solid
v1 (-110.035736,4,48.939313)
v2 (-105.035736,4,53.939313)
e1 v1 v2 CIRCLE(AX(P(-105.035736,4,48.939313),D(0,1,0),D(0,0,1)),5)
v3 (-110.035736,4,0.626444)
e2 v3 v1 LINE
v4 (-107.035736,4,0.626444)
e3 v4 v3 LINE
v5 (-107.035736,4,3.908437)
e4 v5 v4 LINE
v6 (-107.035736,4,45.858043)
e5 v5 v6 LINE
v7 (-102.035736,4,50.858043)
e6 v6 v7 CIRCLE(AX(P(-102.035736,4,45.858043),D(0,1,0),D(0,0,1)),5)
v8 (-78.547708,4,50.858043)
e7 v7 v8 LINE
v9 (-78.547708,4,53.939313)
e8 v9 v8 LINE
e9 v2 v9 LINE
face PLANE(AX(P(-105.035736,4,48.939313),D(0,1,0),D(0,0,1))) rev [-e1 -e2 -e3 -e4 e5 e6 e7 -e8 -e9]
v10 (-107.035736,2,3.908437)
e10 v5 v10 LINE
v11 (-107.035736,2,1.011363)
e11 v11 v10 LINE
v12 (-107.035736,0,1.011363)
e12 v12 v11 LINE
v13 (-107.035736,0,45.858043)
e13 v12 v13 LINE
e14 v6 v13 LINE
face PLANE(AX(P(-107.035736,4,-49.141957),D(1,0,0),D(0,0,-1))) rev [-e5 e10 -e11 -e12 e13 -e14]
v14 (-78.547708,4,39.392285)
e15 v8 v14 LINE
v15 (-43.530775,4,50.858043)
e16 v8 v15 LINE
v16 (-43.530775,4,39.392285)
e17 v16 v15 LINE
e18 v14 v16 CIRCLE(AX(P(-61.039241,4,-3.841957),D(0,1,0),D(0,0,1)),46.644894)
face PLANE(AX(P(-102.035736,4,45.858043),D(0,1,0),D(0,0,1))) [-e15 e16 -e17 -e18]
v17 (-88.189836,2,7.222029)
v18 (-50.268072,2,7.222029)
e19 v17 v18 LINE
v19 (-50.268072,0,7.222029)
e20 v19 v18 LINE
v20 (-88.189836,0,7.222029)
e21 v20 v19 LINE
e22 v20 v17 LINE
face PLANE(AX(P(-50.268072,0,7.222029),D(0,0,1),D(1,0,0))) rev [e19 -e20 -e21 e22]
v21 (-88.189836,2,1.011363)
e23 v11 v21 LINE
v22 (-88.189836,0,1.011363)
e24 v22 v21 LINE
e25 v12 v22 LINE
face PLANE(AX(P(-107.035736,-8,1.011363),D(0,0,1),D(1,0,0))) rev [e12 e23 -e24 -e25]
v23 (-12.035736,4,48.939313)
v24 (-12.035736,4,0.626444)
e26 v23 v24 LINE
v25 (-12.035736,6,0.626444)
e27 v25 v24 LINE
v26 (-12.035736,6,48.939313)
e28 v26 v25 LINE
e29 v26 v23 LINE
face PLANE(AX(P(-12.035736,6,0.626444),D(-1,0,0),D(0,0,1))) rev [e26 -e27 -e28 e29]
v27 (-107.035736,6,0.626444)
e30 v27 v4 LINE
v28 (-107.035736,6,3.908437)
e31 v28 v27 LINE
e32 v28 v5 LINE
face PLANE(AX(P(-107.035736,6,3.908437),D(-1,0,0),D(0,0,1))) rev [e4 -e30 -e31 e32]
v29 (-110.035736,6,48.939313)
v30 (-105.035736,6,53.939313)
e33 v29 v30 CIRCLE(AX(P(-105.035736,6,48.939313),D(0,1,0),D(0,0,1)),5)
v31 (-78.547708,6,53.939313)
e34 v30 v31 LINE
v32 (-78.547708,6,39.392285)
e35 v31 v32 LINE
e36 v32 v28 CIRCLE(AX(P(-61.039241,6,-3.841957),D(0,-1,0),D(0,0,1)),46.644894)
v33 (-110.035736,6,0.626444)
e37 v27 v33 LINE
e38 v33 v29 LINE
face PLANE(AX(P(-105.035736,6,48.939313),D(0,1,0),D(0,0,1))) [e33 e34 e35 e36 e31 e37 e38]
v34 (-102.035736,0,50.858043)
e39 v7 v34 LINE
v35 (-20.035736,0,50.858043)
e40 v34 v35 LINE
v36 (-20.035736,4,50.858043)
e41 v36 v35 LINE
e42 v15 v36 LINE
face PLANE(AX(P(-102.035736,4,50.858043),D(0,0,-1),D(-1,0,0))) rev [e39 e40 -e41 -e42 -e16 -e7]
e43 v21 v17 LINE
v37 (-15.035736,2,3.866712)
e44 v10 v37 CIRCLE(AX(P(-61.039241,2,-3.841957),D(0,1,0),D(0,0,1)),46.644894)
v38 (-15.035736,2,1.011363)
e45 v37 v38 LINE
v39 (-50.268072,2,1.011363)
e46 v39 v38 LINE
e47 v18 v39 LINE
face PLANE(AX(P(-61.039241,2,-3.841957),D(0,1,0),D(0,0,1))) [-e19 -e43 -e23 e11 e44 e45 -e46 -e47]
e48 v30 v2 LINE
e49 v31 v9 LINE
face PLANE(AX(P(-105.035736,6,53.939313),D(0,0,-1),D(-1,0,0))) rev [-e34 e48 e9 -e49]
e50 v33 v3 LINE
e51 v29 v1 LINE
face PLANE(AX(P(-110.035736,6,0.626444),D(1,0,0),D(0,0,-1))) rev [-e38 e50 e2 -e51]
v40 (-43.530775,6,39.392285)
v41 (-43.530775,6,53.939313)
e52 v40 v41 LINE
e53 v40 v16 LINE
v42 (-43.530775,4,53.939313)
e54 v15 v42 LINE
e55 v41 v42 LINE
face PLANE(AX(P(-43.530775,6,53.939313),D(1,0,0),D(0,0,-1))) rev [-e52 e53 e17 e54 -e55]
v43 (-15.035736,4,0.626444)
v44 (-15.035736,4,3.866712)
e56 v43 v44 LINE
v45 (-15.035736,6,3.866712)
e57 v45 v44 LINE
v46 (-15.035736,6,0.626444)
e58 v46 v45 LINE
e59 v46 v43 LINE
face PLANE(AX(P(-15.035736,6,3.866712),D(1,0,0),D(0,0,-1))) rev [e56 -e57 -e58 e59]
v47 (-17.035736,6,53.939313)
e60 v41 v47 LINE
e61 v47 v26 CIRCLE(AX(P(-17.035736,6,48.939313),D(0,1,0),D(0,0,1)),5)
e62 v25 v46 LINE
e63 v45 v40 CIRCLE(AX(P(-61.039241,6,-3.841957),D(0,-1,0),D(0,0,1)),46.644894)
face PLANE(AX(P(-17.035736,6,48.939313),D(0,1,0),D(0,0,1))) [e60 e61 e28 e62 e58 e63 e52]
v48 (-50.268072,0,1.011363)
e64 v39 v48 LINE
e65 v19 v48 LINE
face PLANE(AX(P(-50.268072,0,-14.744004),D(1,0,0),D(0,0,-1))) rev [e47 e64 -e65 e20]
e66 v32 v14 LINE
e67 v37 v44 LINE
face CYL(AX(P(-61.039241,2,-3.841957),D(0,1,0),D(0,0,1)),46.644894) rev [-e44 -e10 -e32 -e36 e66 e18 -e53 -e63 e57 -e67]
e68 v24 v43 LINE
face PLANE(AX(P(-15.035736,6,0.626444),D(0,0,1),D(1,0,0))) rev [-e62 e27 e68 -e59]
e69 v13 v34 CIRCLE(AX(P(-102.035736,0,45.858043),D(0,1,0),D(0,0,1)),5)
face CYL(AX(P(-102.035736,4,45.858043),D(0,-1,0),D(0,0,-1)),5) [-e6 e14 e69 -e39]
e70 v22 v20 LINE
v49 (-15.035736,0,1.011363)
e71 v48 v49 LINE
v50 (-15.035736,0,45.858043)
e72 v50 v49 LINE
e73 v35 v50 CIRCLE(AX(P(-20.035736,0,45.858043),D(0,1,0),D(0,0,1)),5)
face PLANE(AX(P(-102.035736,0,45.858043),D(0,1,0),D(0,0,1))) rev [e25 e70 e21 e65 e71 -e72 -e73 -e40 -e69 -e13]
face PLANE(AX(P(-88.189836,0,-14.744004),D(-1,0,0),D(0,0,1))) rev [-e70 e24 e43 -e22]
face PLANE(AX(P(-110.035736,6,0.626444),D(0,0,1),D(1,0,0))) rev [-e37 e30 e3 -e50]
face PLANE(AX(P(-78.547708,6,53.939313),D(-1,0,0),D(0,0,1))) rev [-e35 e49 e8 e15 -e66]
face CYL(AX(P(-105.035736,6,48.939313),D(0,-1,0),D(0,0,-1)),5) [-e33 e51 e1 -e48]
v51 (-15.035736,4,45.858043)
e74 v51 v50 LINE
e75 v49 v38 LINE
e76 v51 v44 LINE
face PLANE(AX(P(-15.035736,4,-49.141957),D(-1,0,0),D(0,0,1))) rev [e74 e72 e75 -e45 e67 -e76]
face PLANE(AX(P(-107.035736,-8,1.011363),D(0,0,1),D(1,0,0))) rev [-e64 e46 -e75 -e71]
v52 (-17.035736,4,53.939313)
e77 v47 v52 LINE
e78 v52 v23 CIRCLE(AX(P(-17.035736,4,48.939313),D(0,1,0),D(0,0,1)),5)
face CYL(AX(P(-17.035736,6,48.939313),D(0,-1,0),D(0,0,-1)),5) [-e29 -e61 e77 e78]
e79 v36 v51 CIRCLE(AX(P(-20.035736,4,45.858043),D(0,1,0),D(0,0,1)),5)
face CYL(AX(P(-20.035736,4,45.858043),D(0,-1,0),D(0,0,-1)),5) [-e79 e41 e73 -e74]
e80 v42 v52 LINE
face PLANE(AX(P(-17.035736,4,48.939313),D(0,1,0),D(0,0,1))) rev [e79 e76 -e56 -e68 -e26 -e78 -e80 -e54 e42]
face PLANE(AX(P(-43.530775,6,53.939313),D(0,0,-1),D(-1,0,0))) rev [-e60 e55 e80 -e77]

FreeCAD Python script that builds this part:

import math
import FreeCAD as App
import Part
import Sketcher

V = App.Vector
Q = App.Units.Quantity

doc = App.newDocument("Part")
body = doc.addObject("PartDesign::Body", "Body")

# Sketch on XZ plane
sketch1 = body.newObject("Sketcher::SketchObject", "Sketch")
sketch1.AttachmentSupport = (doc.getObject("XZ_Plane"), [""])
sketch1.MapMode = "FlatFace"
sketch1.addGeometry([
    Part.LineSegment(V(-15, -49, 0), V(-107, -49, 0)),  # 0
    Part.LineSegment(V(-107, -49, 0), V(-107, 46, 0)),  # 1
    Part.ArcOfCircle(Part.Circle(V(-102, 46, 0), V(0, 0, 1), 5), math.radians(90), math.radians(180)),  # 2
    Part.LineSegment(V(-102, 51, 0), V(-20, 51, 0)),  # 3
    Part.ArcOfCircle(Part.Circle(V(-20, 46, 0), V(0, 0, 1), 5), math.radians(0), math.radians(90)),  # 4
    Part.LineSegment(V(-15, 46, 0), V(-15, -49, 0)),  # 5
], False)
sketch1.addConstraint([
    Sketcher.Constraint("Coincident", 0, 2, 1, 1),
    Sketcher.Constraint("Tangent", 1, 2, 2, 2),
    Sketcher.Constraint("Tangent", 2, 1, 3, 1),
    Sketcher.Constraint("Tangent", 3, 2, 4, 2),
    Sketcher.Constraint("Tangent", 4, 1, 5, 1),
    Sketcher.Constraint("Coincident", 5, 2, 0, 1),
    Sketcher.Constraint("Horizontal", 0),
    Sketcher.Constraint("Vertical", 1),
    Sketcher.Constraint("Horizontal", 3),
    Sketcher.Constraint("Vertical", 5),
    Sketcher.Constraint("Equal", 2, 4),
    Sketcher.Constraint("Radius", 2, Q("5 mm")),
    Sketcher.Constraint("DistanceX", 0, 2, 0, 1, Q("92 mm")),
    Sketcher.Constraint("DistanceY", 1, 1, 1, 2, Q("95 mm")),
    Sketcher.Constraint("DistanceX", 2, 3, -1, 1, Q("102.035736 mm")),
    Sketcher.Constraint("DistanceY", -1, 1, 2, 3, Q("45.858043 mm")),
])
pad1 = body.newObject("PartDesign::Pad", "Pad")
pad1.Profile = sketch1
pad1.Length = 4
pad1.Reversed = True

# Sketch on XZ plane
sketch2 = body.newObject("Sketcher::SketchObject", "Sketch001")
sketch2.AttachmentSupport = (doc.getObject("XZ_Plane"), [""])
sketch2.MapMode = "FlatFace"
sketch2.AttachmentOffset = App.Placement(V(0, 0, -4), App.Rotation())
sketch2.addGeometry([
    Part.LineSegment(V(-1, -54, 0), V(-122, -54, 0)),  # 0
    Part.LineSegment(V(-122, -54, 0), V(-116, 2, 0)),  # 1
    Part.LineSegment(V(-116, 2, 0), V(-107, 2, 0)),  # 2
    Part.ArcOfCircle(Part.Circle(V(-61, -2, 0), V(0, 0, 1), 46), math.radians(175), math.radians(365)),  # 3
    Part.LineSegment(V(-15, 2, 0), V(-1, 2, 0)),  # 4
    Part.LineSegment(V(-1, 2, 0), V(-1, -54, 0)),  # 5
], False)
sketch2.addConstraint([
    Sketcher.Constraint("Coincident", 0, 2, 1, 1),
    Sketcher.Constraint("Coincident", 1, 2, 2, 1),
    Sketcher.Constraint("Coincident", 2, 2, 3, 1),
    Sketcher.Constraint("Coincident", 3, 2, 4, 1),
    Sketcher.Constraint("Coincident", 4, 2, 5, 1),
    Sketcher.Constraint("Coincident", 5, 2, 0, 1),
    Sketcher.Constraint("Horizontal", 0),
    Sketcher.Constraint("Horizontal", 2),
    Sketcher.Constraint("Horizontal", 4),
    Sketcher.Constraint("Vertical", 5),
    Sketcher.Constraint("Horizontal", 2, 2, 3, 2),
    Sketcher.Constraint("DistanceX", 2, 2, 3, 3, Q("46 mm")),
    Sketcher.Constraint("Radius", 3, Q("46.148858 mm")),
    Sketcher.Constraint("DistanceX", 0, 2, 0, 1, Q("121.303026 mm")),
    Sketcher.Constraint("DistanceX", 2, 1, 2, 2, Q("9.170204 mm")),
    Sketcher.Constraint("DistanceX", 4, 1, 4, 2, Q("14.154654 mm")),
    Sketcher.Constraint("DistanceY", 5, 2, 5, 1, Q("56.076026 mm")),
    Sketcher.Constraint("DistanceX", 1, 2, -1, 1, Q("116.20594 mm")),
    Sketcher.Constraint("DistanceY", -1, 1, 1, 2, Q("1.763819 mm")),
])
pocket1 = body.newObject("PartDesign::Pocket", "Pocket")
pocket1.Profile = sketch2
pocket1.Length = 4
pocket1.Reversed = True

# Sketch on XZ plane
sketch3 = body.newObject("Sketcher::SketchObject", "Sketch002")
sketch3.AttachmentSupport = (doc.getObject("XZ_Plane"), [""])
sketch3.MapMode = "FlatFace"
sketch3.AttachmentOffset = App.Placement(V(0, 0, -4), App.Rotation())
sketch3.addGeometry(Part.Circle(V(-61, -4, 0), V(0, 0, 1), 47), False)
sketch3.addConstraint([
    Sketcher.Constraint("Diameter", 0, Q("93.289787 mm")),
    Sketcher.Constraint("DistanceX", 0, 3, -1, 1, Q("61.039241 mm")),
    Sketcher.Constraint("DistanceY", 0, 3, -1, 1, Q("3.841957 mm")),
])
pocket2 = body.newObject("PartDesign::Pocket", "Pocket001")
pocket2.Profile = sketch3
pocket2.Length = 2
pocket2.Reversed = True

# Sketch on XZ plane
sketch4 = body.newObject("Sketcher::SketchObject", "Sketch003")
sketch4.AttachmentSupport = (doc.getObject("XZ_Plane"), [""])
sketch4.MapMode = "FlatFace"
sketch4.AttachmentOffset = App.Placement(V(0, 0, -2), App.Rotation())
sketch4.addGeometry([
    Part.LineSegment(V(-88, -15, 0), V(-88, 7, 0)),
    Part.LineSegment(V(-88, 7, 0), V(-50, 7, 0)),
    Part.LineSegment(V(-50, 7, 0), V(-50, -15, 0)),
    Part.LineSegment(V(-50, -15, 0), V(-88, -15, 0)),
], False)
sketch4.addConstraint([
    Sketcher.Constraint("Coincident", 0, 2, 1, 1),
    Sketcher.Constraint("Coincident", 1, 2, 2, 1),
    Sketcher.Constraint("Coincident", 2, 2, 3, 1),
    Sketcher.Constraint("Coincident", 3, 2, 0, 1),
    Sketcher.Constraint("Vertical", 0),
    Sketcher.Constraint("Horizontal", 1),
    Sketcher.Constraint("Vertical", 2),
    Sketcher.Constraint("Horizontal", 3),
    Sketcher.Constraint("DistanceX", 1, 1, 1, 2, Q("37.921764 mm")),
    Sketcher.Constraint("DistanceY", 0, 1, 0, 2, Q("21.966034 mm")),
    Sketcher.Constraint("DistanceY", -1, 1, 0, 2, Q("7.222029 mm")),
    Sketcher.Constraint("DistanceX", 0, 2, -1, 1, Q("88.189836 mm")),
])
pocket3 = body.newObject("PartDesign::Pocket", "Pocket002")
pocket3.Profile = sketch4
pocket3.Length = 2
pocket3.Reversed = True

# Sketch on XZ plane
sketch5 = body.newObject("Sketcher::SketchObject", "Sketch004")
sketch5.AttachmentSupport = (doc.getObject("XZ_Plane"), [""])
sketch5.MapMode = "FlatFace"
sketch5.AttachmentOffset = App.Placement(V(0, 0, -2), App.Rotation())
sketch5.addGeometry([
    Part.LineSegment(V(-12, -52, 0), V(-107, -52, 0)),
    Part.LineSegment(V(-107, -52, 0), V(-107, 1, 0)),
    Part.LineSegment(V(-107, 1, 0), V(-15, 1, 0)),
    Part.LineSegment(V(-15, 1, 0), V(-12, -52, 0)),
], False)
sketch5.addConstraint([
    Sketcher.Constraint("Coincident", 0, 2, 1, 1),
    Sketcher.Constraint("Coincident", 1, 2, 2, 1),
    Sketcher.Constraint("Coincident", 2, 2, 3, 1),
    Sketcher.Constraint("Coincident", 3, 2, 0, 1),
    Sketcher.Constraint("Horizontal", 0),
    Sketcher.Constraint("Vertical", 1),
    Sketcher.Constraint("Horizontal", 2),
    Sketcher.Constraint("DistanceX", 0, 2, 0, 1, Q("95 mm")),
    Sketcher.Constraint("DistanceX", 2, 1, 2, 2, Q("92 mm")),
    Sketcher.Constraint("DistanceY", 1, 1, 1, 2, Q("52.834734 mm")),
    Sketcher.Constraint("DistanceY", 0, 2, -1, 1, Q("51.823371 mm")),
    Sketcher.Constraint("DistanceX", 0, 2, -1, 1, Q("107.035736 mm")),
])
pocket4 = body.newObject("PartDesign::Pocket", "Pocket003")
pocket4.Profile = sketch5
pocket4.Length = 10
pocket4.Reversed = True

# Sketch on XZ plane
sketch6 = body.newObject("Sketcher::SketchObject", "Sketch005")
sketch6.AttachmentSupport = (doc.getObject("XZ_Plane"), [""])
sketch6.MapMode = "FlatFace"
sketch6.AttachmentOffset = App.Placement(V(0, 0, -4), App.Rotation())
sketch6.addGeometry([
    Part.LineSegment(V(-107, 0.6, 0), V(-110, 0.6, 0)),  # 0
    Part.LineSegment(V(-110, 0.6, 0), V(-110, 48.9, 0)),  # 1
    Part.ArcOfCircle(Part.Circle(V(-105, 48.9, 0), V(0, 0, 1), 5), math.radians(90), math.radians(180)),  # 2
    Part.LineSegment(V(-105, 53.9, 0), V(-78.5, 53.9, 0)),  # 3
    Part.LineSegment(V(-78.5, 53.9, 0), V(-78.5, 39.4, 0)),  # 4
    Part.ArcOfCircle(Part.Circle(V(-61, -3.8, 0), V(0, 0, 1), 46.6), math.radians(112), math.radians(170)),  # 5
    Part.LineSegment(V(-107, 3.9, 0), V(-107, 0.6, 0)),  # 6
    Part.LineSegment(V(-12, 48.9, 0), V(-12, 0.6, 0)),  # 7
    Part.LineSegment(V(-12, 0.6, 0), V(-15, 0.6, 0)),  # 8
    Part.LineSegment(V(-15, 0.6, 0), V(-15, 3.9, 0)),  # 9
    Part.ArcOfCircle(Part.Circle(V(-61, -3.8, 0), V(0, 0, 1), 46.6), math.radians(10), math.radians(68)),  # 10
    Part.LineSegment(V(-43.5, 39.4, 0), V(-43.5, 53.9, 0)),  # 11
    Part.LineSegment(V(-43.5, 53.9, 0), V(-17, 53.9, 0)),  # 12
    Part.ArcOfCircle(Part.Circle(V(-17, 48.9, 0), V(0, 0, 1), 5), math.radians(0), math.radians(90)),  # 13
], False)
sketch6.addConstraint([
    Sketcher.Constraint("Coincident", 0, 2, 1, 1),
    Sketcher.Constraint("Tangent", 1, 2, 2, 2),
    Sketcher.Constraint("Tangent", 2, 1, 3, 1),
    Sketcher.Constraint("Coincident", 3, 2, 4, 1),
    Sketcher.Constraint("Coincident", 4, 2, 5, 1),
    Sketcher.Constraint("Coincident", 5, 2, 6, 1),
    Sketcher.Constraint("Coincident", 6, 2, 0, 1),
    Sketcher.Constraint("Coincident", 7, 2, 8, 1),
    Sketcher.Constraint("Coincident", 8, 2, 9, 1),
    Sketcher.Constraint("Coincident", 9, 2, 10, 1),
    Sketcher.Constraint("Coincident", 10, 2, 11, 1),
    Sketcher.Constraint("Coincident", 11, 2, 12, 1),
    Sketcher.Constraint("Tangent", 12, 2, 13, 2),
    Sketcher.Constraint("Tangent", 13, 1, 7, 1),
    Sketcher.Constraint("Horizontal", 0),
    Sketcher.Constraint("Vertical", 1),
    Sketcher.Constraint("Horizontal", 3),
    Sketcher.Constraint("Vertical", 4),
    Sketcher.Constraint("Vertical", 6),
    Sketcher.Constraint("Vertical", 7),
    Sketcher.Constraint("Horizontal", 8),
    Sketcher.Constraint("Vertical", 9),
    Sketcher.Constraint("Vertical", 11),
    Sketcher.Constraint("Horizontal", 12),
    Sketcher.Constraint("Coincident", 10, 3, 5, 3),
    Sketcher.Constraint("Equal", 5, 10),
    Sketcher.Constraint("Equal", 2, 13),
    Sketcher.Constraint("Horizontal", 2, 3, 13, 3),
    Sketcher.Constraint("Horizontal", 6, 2, 7, 2),
    Sketcher.Constraint("Horizontal", 4, 2, 10, 2),
    Sketcher.Constraint("Equal", 0, 8),
    Sketcher.Constraint("Radius", 2, Q("5 mm")),
    Sketcher.Constraint("DistanceX", 0, 2, 0, 1, Q("3 mm")),
    Sketcher.Constraint("DistanceX", 2, 3, 13, 3, Q("88 mm")),
    Sketcher.Constraint("Radius", 5, Q("46.644894 mm")),
    Sketcher.Constraint("DistanceX", 3, 1, 3, 2, Q("26.488028 mm")),
    Sketcher.Constraint("DistanceX", 12, 1, 12, 2, Q("26.495039 mm")),
    Sketcher.Constraint("DistanceY", 1, 1, 1, 2, Q("48.312869 mm")),
    Sketcher.Constraint("DistanceY", 10, 3, 0, 2, Q("4.468401 mm")),
    Sketcher.Constraint("DistanceX", 5, 3, -1, 1, Q("61.039241 mm")),
    Sketcher.Constraint("DistanceY", -1, 1, 9, 2, Q("3.866712 mm")),
])
pad2 = body.newObject("PartDesign::Pad", "Pad001")
pad2.Profile = sketch6
pad2.Length = 2
pad2.Reversed = True

doc.recompute()
